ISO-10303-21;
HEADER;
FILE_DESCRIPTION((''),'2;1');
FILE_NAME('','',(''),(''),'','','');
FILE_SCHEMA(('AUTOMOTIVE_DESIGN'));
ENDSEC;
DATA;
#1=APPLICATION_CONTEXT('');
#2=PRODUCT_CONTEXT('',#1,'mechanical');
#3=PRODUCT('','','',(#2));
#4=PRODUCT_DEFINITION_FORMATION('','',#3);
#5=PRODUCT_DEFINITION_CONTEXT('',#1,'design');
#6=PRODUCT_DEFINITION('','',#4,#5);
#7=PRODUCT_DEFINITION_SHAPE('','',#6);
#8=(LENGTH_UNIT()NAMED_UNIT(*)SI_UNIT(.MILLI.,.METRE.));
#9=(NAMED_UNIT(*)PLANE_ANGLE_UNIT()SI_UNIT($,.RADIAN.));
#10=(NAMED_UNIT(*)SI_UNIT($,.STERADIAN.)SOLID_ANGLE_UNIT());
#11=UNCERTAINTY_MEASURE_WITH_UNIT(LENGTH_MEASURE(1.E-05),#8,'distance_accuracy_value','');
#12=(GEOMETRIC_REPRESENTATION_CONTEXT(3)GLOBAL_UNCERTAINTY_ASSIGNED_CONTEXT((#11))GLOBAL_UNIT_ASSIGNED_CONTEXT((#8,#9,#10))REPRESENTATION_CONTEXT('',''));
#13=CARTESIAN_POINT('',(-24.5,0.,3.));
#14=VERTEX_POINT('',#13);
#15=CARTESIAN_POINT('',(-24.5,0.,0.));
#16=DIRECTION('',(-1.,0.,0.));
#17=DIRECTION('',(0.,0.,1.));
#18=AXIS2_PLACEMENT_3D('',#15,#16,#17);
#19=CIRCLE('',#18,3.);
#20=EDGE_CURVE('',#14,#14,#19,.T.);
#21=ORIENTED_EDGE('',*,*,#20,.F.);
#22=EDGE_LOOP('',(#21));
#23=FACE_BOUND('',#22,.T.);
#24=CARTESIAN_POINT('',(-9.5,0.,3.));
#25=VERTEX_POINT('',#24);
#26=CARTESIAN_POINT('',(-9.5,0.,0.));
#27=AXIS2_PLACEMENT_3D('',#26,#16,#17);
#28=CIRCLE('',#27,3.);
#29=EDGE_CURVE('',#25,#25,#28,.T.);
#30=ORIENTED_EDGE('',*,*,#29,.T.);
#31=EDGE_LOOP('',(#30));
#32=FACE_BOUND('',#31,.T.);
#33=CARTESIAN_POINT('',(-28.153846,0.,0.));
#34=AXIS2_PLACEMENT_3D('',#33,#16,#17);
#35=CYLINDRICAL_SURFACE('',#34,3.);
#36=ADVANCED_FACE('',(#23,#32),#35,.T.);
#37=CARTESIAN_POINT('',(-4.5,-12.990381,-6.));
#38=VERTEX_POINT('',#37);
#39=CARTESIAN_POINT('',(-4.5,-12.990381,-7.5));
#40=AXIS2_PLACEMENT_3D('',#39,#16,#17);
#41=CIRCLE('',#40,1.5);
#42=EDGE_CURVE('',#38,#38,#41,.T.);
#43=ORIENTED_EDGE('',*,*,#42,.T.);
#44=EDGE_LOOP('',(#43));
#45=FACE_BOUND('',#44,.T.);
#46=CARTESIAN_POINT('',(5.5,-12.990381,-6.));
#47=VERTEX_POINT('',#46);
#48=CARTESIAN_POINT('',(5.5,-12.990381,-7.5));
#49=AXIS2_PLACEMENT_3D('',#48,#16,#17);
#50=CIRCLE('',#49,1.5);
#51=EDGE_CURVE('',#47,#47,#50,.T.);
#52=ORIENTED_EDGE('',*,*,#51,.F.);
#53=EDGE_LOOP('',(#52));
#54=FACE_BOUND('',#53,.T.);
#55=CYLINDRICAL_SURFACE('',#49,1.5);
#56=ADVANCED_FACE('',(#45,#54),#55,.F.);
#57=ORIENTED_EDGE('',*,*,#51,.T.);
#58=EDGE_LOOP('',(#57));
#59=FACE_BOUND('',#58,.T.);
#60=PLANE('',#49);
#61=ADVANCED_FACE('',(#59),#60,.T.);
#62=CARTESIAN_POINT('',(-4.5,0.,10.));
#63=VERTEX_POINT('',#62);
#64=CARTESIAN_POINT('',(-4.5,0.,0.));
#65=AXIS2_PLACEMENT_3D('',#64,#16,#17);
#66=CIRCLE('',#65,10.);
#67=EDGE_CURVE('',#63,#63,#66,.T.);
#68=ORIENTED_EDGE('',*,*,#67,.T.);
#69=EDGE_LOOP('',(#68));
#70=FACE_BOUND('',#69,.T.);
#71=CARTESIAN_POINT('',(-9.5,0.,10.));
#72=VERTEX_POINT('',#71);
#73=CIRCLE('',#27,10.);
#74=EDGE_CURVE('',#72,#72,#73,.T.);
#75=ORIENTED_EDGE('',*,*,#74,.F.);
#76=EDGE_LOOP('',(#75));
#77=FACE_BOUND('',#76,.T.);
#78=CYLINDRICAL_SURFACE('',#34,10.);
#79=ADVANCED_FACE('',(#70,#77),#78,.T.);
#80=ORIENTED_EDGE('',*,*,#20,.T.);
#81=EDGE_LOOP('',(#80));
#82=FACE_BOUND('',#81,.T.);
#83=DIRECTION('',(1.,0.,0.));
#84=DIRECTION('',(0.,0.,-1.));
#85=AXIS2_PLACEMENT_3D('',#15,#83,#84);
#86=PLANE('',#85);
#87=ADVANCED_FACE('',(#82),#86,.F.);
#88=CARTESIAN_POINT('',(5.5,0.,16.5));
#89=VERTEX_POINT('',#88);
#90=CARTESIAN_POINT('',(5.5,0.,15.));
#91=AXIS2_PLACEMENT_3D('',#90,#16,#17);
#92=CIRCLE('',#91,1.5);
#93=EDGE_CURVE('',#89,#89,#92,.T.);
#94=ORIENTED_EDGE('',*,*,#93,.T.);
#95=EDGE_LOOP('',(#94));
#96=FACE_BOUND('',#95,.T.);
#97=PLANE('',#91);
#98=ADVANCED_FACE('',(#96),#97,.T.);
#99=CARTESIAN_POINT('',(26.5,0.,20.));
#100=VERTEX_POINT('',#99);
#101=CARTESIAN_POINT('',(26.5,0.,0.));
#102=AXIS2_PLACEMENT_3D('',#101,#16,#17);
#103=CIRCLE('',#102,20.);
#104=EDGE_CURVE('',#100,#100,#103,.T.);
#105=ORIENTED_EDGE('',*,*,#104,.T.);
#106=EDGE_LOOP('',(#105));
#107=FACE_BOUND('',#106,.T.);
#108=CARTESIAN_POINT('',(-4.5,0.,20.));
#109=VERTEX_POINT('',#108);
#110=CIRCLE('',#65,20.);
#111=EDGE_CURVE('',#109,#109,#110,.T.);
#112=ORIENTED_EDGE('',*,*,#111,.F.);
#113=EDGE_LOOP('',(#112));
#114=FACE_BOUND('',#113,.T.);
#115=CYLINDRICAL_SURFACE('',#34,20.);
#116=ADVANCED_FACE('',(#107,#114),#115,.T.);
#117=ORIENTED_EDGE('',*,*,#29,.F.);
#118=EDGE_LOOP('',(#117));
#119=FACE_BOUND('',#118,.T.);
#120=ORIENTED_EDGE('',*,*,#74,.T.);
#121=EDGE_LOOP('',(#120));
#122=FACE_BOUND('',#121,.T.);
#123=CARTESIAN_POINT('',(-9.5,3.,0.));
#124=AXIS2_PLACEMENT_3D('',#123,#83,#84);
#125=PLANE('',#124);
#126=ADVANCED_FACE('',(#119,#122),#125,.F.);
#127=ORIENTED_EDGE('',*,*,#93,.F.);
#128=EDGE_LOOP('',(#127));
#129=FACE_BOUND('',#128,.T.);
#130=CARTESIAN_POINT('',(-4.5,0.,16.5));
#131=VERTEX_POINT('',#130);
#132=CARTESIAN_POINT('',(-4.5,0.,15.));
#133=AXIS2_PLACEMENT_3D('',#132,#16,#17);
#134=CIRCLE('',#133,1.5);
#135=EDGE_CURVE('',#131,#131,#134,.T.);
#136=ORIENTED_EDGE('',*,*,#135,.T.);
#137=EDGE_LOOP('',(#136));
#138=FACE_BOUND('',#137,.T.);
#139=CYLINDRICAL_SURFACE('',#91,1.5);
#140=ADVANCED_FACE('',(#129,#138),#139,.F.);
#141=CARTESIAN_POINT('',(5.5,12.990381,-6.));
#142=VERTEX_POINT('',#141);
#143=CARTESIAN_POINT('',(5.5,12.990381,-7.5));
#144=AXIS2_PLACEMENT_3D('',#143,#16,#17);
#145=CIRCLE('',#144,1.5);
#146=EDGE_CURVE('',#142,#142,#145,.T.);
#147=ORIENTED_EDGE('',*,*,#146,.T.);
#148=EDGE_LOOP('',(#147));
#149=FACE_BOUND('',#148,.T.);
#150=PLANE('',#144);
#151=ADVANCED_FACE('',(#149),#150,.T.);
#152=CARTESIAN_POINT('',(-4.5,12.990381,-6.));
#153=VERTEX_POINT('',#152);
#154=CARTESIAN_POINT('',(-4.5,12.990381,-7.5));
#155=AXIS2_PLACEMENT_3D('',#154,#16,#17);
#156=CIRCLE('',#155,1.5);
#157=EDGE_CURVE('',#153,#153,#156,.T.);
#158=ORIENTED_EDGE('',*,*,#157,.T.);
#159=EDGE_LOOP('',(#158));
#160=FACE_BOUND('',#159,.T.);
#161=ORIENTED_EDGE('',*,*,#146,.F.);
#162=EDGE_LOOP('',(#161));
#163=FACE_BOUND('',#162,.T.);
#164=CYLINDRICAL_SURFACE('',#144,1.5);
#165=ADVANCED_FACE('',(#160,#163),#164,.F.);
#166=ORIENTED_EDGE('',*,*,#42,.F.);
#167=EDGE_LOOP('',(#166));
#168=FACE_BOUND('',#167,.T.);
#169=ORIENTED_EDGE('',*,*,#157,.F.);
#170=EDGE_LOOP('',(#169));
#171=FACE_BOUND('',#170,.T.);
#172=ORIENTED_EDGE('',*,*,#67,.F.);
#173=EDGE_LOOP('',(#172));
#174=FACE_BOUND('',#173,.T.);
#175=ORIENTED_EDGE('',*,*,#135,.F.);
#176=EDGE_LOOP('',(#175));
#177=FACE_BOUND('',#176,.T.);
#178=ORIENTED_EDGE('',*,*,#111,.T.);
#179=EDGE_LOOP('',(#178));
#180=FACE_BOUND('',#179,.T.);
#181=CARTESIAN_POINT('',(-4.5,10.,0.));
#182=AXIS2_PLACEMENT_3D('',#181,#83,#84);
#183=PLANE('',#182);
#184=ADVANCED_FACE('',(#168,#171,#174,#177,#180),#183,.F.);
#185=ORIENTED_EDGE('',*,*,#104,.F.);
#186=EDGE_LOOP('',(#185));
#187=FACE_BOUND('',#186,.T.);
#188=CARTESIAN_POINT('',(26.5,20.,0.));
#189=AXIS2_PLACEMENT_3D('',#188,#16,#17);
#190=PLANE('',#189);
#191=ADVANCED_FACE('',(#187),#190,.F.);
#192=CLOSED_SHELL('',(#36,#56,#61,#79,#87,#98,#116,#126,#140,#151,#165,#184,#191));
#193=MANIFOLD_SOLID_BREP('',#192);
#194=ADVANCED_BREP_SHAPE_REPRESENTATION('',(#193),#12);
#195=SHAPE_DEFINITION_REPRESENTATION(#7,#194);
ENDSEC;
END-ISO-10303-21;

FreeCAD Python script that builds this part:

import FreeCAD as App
import Part
import Sketcher
from FreeCAD import Vector
Q = App.Units.Quantity


def add_polygon(sketch, points):
    """Adds a closed chain of lines whose ends are joined by coincident constraints."""
    first, n = sketch.GeometryCount, len(points)
    for a, b in zip(points, points[1:] + points[:1]):
        sketch.addGeometry(Part.LineSegment(App.Vector(*a, 0), App.Vector(*b, 0)), False)
    for i in range(n):
        sketch.addConstraint(Sketcher.Constraint("Coincident", first + i, 2, first + (i + 1) % n, 1))

doc = App.newDocument("Part")
body = doc.addObject("PartDesign::Body", "Body")

# Sketch on XY plane
sketch1 = doc.addObject("Sketcher::SketchObject", "Sketch")
body.addObject(sketch1)
sketch1.AttachmentSupport = (doc.XY_Plane, [""])
sketch1.MapMode = "FlatFace"
add_polygon(sketch1, [(-24.5, 3), (-24.5, 0), (26.5, 0), (26.5, 20), (-4.5, 20), (-4.5, 10), (-9.5, 10), (-9.5, 3)])  # lines 0-7
sketch1.addConstraint([
    Sketcher.Constraint("Vertical", 0),
    Sketcher.Constraint("Horizontal", 1),
    Sketcher.Constraint("Vertical", 2),
    Sketcher.Constraint("Horizontal", 3),
    Sketcher.Constraint("Vertical", 4),
    Sketcher.Constraint("Horizontal", 5),
    Sketcher.Constraint("Vertical", 6),
    Sketcher.Constraint("Horizontal", 7),
    Sketcher.Constraint("PointOnObject", 0, 2, -1),
    Sketcher.Constraint("DistanceX", 1, 1, 1, 2, Q("51 mm")),
    Sketcher.Constraint("DistanceX", 3, 2, 3, 1, Q("31 mm")),
    Sketcher.Constraint("DistanceX", 5, 2, 5, 1, Q("5 mm")),
    Sketcher.Constraint("DistanceY", 0, 2, 0, 1, Q("3 mm")),
    Sketcher.Constraint("DistanceY", 2, 1, 2, 2, Q("20 mm")),
    Sketcher.Constraint("DistanceY", 4, 2, 4, 1, Q("10 mm")),
    Sketcher.Constraint("DistanceX", 0, 2, -1, 1, Q("24.5 mm")),
])
revolution = doc.addObject("PartDesign::Revolution", "Revolution")
body.addObject(revolution)
revolution.Profile = sketch1
revolution.ReferenceAxis = (sketch1, ["H_Axis"])
revolution.Angle = 360

# Sketch on YZ plane
sketch2 = doc.addObject("Sketcher::SketchObject", "Sketch001")
body.addObject(sketch2)
sketch2.AttachmentSupport = (doc.YZ_Plane, [""])
sketch2.MapMode = "FlatFace"
sketch2.AttachmentOffset = App.Placement(Vector(0, 0, -4.5), App.Rotation())
sketch2.addGeometry([
    Part.Circle(Vector(0, 15, 0), Vector(0, 0, 1), 1.5),
    Part.Circle(Vector(-12.990381, -7.5, 0), Vector(0, 0, 1), 1.5),
    Part.Circle(Vector(12.990381, -7.5, 0), Vector(0, 0, 1), 1.5),
], False)
sketch2.addConstraint([
    Sketcher.Constraint("Equal", 0, 1),
    Sketcher.Constraint("Equal", 1, 2),
    Sketcher.Constraint("Symmetric", 1, 3, 2, 3, -2),
    Sketcher.Constraint("PointOnObject", 0, 3, -2),
    Sketcher.Constraint("Diameter", 0, Q("3 mm")),
    Sketcher.Constraint("DistanceY", -1, 1, 0, 3, Q("15 mm")),
    Sketcher.Constraint("DistanceY", 1, 3, -1, 1, Q("7.5 mm")),
    Sketcher.Constraint("DistanceX", 1, 3, -1, 1, Q("12.990381 mm")),
])
pocket1 = doc.addObject("PartDesign::Pocket", "Pocket")
body.addObject(pocket1)
pocket1.Profile = sketch2
pocket1.Length = 10
pocket1.Reversed = True

doc.recompute()
